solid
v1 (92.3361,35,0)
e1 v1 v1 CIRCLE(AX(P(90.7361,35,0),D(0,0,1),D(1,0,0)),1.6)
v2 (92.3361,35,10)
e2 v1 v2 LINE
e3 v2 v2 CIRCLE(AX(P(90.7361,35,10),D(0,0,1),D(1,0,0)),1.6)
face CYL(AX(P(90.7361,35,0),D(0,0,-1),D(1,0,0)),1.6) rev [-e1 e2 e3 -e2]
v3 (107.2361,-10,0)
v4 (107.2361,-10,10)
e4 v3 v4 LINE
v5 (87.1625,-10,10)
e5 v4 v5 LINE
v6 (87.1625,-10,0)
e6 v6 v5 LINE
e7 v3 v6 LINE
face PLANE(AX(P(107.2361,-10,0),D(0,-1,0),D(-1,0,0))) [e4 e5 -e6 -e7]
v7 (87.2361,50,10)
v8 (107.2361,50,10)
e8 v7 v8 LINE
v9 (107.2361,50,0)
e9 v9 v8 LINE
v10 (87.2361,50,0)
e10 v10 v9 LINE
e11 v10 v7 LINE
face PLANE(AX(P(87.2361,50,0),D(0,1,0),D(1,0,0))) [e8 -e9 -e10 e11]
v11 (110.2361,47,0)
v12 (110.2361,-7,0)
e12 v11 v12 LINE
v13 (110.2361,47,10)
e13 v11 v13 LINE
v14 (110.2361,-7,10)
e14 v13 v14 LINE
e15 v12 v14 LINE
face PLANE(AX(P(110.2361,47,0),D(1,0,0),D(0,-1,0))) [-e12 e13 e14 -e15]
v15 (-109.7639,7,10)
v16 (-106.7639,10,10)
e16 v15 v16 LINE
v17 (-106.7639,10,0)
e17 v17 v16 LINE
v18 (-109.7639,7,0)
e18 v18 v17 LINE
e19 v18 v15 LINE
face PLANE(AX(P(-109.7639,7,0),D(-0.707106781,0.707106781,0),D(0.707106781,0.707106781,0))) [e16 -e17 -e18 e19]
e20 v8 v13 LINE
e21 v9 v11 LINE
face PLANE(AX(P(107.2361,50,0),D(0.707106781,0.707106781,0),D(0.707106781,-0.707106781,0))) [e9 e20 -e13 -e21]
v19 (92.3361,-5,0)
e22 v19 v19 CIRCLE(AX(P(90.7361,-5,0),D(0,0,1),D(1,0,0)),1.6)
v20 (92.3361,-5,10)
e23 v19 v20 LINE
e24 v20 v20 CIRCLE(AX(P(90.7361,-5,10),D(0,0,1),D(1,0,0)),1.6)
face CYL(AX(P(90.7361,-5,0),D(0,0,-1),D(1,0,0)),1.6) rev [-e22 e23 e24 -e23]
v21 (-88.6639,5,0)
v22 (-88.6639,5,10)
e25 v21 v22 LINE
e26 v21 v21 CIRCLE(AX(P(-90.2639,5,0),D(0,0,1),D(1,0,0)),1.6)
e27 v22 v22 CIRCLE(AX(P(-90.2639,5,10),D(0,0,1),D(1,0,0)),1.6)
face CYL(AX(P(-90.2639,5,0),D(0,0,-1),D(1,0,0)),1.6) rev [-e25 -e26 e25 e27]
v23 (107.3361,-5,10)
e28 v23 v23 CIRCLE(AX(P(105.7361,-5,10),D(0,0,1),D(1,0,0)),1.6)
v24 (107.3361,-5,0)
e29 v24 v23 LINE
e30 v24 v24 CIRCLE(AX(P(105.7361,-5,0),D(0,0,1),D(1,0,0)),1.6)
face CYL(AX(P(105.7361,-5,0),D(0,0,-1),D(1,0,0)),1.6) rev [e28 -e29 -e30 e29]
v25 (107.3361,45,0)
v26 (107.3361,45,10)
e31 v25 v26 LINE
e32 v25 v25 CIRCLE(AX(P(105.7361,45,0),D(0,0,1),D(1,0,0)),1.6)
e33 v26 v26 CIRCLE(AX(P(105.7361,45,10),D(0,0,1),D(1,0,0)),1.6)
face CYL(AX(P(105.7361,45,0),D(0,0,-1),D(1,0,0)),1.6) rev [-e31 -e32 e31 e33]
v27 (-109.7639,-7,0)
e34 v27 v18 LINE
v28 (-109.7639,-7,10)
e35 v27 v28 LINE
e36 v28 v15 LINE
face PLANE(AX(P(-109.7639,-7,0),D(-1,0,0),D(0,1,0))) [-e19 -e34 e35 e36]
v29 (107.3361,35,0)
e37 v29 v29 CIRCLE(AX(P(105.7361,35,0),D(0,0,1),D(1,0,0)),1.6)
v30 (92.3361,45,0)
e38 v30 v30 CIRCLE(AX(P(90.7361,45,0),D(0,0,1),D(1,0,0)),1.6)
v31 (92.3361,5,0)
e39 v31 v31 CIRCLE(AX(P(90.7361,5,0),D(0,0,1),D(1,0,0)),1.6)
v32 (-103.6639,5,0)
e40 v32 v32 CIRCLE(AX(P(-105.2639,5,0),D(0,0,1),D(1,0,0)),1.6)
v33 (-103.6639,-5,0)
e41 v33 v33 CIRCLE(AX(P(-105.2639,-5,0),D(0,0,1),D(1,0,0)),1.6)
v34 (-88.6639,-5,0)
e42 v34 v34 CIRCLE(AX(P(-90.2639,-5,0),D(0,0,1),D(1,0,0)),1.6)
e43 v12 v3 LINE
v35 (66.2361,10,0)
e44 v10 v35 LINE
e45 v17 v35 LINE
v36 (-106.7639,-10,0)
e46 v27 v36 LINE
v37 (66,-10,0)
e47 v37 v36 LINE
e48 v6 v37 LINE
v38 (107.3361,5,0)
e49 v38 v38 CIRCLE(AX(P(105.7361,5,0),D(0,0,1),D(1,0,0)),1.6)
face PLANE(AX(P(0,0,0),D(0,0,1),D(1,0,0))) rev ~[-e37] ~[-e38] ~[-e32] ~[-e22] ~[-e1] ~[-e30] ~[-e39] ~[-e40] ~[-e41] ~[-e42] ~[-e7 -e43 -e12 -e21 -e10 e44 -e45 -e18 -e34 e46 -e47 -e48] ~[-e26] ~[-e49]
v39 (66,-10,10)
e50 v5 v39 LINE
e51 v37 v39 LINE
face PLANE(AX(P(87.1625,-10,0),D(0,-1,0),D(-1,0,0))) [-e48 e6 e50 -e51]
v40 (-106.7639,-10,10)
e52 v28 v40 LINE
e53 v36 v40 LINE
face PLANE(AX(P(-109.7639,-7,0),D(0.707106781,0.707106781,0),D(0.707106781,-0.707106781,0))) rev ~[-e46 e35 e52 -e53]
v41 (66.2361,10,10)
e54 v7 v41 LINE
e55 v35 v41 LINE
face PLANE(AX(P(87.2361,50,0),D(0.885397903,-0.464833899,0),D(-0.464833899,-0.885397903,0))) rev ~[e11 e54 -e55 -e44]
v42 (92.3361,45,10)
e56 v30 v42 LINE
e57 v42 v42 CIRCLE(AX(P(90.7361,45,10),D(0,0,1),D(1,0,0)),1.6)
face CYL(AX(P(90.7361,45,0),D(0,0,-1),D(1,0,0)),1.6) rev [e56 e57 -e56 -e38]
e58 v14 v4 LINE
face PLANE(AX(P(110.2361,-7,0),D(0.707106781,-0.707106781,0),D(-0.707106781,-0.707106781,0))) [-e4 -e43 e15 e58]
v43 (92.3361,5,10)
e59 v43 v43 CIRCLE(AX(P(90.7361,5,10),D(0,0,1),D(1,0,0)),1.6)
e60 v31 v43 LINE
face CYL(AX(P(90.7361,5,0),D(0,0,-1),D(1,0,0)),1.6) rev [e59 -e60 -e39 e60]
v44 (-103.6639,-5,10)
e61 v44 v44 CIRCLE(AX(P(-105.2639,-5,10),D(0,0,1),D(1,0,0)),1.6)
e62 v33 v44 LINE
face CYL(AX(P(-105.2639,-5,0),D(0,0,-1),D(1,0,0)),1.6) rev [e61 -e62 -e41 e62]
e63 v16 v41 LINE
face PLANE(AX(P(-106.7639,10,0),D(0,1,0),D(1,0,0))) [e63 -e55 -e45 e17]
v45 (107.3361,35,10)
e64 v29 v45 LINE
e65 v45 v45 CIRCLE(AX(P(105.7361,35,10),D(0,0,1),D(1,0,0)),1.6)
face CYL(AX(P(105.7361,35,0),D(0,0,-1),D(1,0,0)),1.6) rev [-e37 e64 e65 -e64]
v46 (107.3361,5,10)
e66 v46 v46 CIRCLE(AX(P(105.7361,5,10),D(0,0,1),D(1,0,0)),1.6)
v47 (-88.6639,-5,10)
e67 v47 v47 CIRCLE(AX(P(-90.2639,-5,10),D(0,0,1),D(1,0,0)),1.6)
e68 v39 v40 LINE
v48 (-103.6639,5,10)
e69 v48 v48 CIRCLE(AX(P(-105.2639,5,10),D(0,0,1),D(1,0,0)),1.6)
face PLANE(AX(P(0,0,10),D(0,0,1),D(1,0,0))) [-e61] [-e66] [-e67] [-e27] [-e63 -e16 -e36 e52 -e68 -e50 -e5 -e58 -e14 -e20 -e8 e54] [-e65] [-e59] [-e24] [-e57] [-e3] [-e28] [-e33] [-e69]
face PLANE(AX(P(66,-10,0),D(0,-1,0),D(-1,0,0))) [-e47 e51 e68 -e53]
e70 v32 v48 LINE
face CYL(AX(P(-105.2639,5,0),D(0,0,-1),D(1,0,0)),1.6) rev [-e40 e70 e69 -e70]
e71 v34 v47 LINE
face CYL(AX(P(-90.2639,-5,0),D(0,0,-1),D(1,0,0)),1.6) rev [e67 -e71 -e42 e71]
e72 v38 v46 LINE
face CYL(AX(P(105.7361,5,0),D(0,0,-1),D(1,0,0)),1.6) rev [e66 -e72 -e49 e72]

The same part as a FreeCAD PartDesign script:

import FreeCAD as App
import Part
import Sketcher

V = App.Vector

doc = App.newDocument("Part")
body = doc.addObject("PartDesign::Body", "Body")

sketch1 = doc.addObject("Sketcher::SketchObject", "Sketch")
body.addObject(sketch1)
sketch1.AttachmentSupport = (doc.XY_Plane, [""])
sketch1.MapMode = "FlatFace"
sketch1.addGeometry([
    Part.LineSegment(V(-109.7639, 7, 0), V(-109.7639, -7, 0)),
    Part.LineSegment(V(-109.7639, -7, 0), V(-106.7639, -10, 0)),
    Part.LineSegment(V(-106.7639, -10, 0), V(107.2361, -10, 0)),
    Part.LineSegment(V(107.2361, -10, 0), V(110.2361, -7, 0)),
    Part.LineSegment(V(110.2361, -7, 0), V(110.2361, 47, 0)),
    Part.LineSegment(V(110.2361, 47, 0), V(107.2361, 50, 0)),
    Part.LineSegment(V(107.2361, 50, 0), V(87.2361, 50, 0)),
    Part.LineSegment(V(87.2361, 50, 0), V(66.2361, 10, 0)),
    Part.LineSegment(V(66.2361, 10, 0), V(-106.7639, 10, 0)),
    Part.LineSegment(V(-106.7639, 10, 0), V(-109.7639, 7, 0)),
    Part.Circle(V(-105.2639, -5, 0), V(0, 0, 1), 1.6),
    Part.Circle(V(-90.2639, -5, 0), V(0, 0, 1), 1.6),
    Part.Circle(V(-105.2639, 5, 0), V(0, 0, 1), 1.6),
    Part.Circle(V(-90.2639, 5, 0), V(0, 0, 1), 1.6),
    Part.Circle(V(90.7361, -5, 0), V(0, 0, 1), 1.6),
    Part.Circle(V(105.7361, -5, 0), V(0, 0, 1), 1.6),
    Part.Circle(V(90.7361, 5, 0), V(0, 0, 1), 1.6),
    Part.Circle(V(105.7361, 5, 0), V(0, 0, 1), 1.6),
    Part.Circle(V(90.7361, 35, 0), V(0, 0, 1), 1.6),
    Part.Circle(V(105.7361, 35, 0), V(0, 0, 1), 1.6),
    Part.Circle(V(90.7361, 45, 0), V(0, 0, 1), 1.6),
    Part.Circle(V(105.7361, 45, 0), V(0, 0, 1), 1.6),
], False)
sketch1.addConstraint([
    Sketcher.Constraint("Coincident", 0, 2, 1, 1),
    Sketcher.Constraint("Coincident", 1, 2, 2, 1),
    Sketcher.Constraint("Coincident", 2, 2, 3, 1),
    Sketcher.Constraint("Coincident", 3, 2, 4, 1),
    Sketcher.Constraint("Coincident", 4, 2, 5, 1),
    Sketcher.Constraint("Coincident", 5, 2, 6, 1),
    Sketcher.Constraint("Coincident", 6, 2, 7, 1),
    Sketcher.Constraint("Coincident", 7, 2, 8, 1),
    Sketcher.Constraint("Coincident", 8, 2, 9, 1),
    Sketcher.Constraint("Coincident", 9, 2, 0, 1),
    Sketcher.Constraint("Vertical", 0),
    Sketcher.Constraint("Horizontal", 2),
    Sketcher.Constraint("Vertical", 4),
    Sketcher.Constraint("Horizontal", 6),
    Sketcher.Constraint("Horizontal", 8),
    Sketcher.Constraint("Equal", 10, 11),
    Sketcher.Constraint("Equal", 11, 12),
    Sketcher.Constraint("Equal", 12, 13),
    Sketcher.Constraint("Equal", 13, 14),
    Sketcher.Constraint("Equal", 14, 15),
    Sketcher.Constraint("Equal", 15, 16),
    Sketcher.Constraint("Equal", 16, 17),
    Sketcher.Constraint("Equal", 17, 18),
    Sketcher.Constraint("Equal", 18, 19),
    Sketcher.Constraint("Equal", 19, 20),
    Sketcher.Constraint("Equal", 20, 21),
    Sketcher.Constraint("Symmetric", 10, 3, 12, 3, -1),
    Sketcher.Constraint("Symmetric", 11, 3, 13, 3, -1),
    Sketcher.Constraint("Symmetric", 14, 3, 16, 3, -1),
    Sketcher.Constraint("Symmetric", 15, 3, 17, 3, -1),
    Sketcher.Constraint("Symmetric", 1, 2, 8, 2, -1),
    Sketcher.Constraint("Perpendicular", 1, 3),
    Sketcher.Constraint("Perpendicular", 3, 5),
    Sketcher.Constraint("Perpendicular", 5, 9),
    Sketcher.Constraint("Horizontal", 10, 3, 11, 3),
    Sketcher.Constraint("Horizontal", 11, 3, 14, 3),
    Sketcher.Constraint("Horizontal", 14, 3, 15, 3),
    Sketcher.Constraint("Horizontal", 18, 3, 19, 3),
    Sketcher.Constraint("Horizontal", 20, 3, 21, 3),
    Sketcher.Constraint("Horizontal", 0, 2, 3, 2),
    Sketcher.Constraint("Vertical", 16, 3, 18, 3),
    Sketcher.Constraint("Vertical", 17, 3, 19, 3),
    Sketcher.Constraint("Vertical", 18, 3, 20, 3),
    Sketcher.Constraint("Vertical", 19, 3, 21, 3),
    Sketcher.Constraint("Vertical", 2, 2, 5, 2),
    Sketcher.Constraint("Equal", 1, 3),
    Sketcher.Constraint("Diameter", 10, 3.2),
    Sketcher.Constraint("DistanceX", 6, 2, 6, 1, 20.0),
    Sketcher.Constraint("DistanceY", 10, 3, -1, 1, 5.0),
    Sketcher.Constraint("DistanceY", 1, 2, -1, 1, 10.0),
    Sketcher.Constraint("DistanceX", 10, 3, 11, 3, 15.0),
    Sketcher.Constraint("DistanceX", 14, 3, 15, 3, 15.0),
    Sketcher.Constraint("DistanceY", 16, 3, 18, 3, 30.0),
    Sketcher.Constraint("DistanceY", 18, 3, 20, 3, 10.0),
    Sketcher.Constraint("DistanceY", 0, 2, 12, 3, 12.0),
    Sketcher.Constraint("DistanceY", 19, 3, 4, 2, 12.0),
    Sketcher.Constraint("DistanceX", 0, 2, 10, 3, 4.5),
    Sketcher.Constraint("DistanceX", 15, 3, 3, 2, 4.5),
    Sketcher.Constraint("DistanceX", 2, 1, 2, 2, 214.0),
    Sketcher.Constraint("DistanceX", 8, 2, 8, 1, 173.0),
    Sketcher.Constraint("DistanceX", 10, 3, -1, 1, 105.264),
])
pad1 = doc.addObject("PartDesign::Pad", "Pad")
body.addObject(pad1)
pad1.Profile = sketch1
pad1.Length = 10

doc.recompute()
